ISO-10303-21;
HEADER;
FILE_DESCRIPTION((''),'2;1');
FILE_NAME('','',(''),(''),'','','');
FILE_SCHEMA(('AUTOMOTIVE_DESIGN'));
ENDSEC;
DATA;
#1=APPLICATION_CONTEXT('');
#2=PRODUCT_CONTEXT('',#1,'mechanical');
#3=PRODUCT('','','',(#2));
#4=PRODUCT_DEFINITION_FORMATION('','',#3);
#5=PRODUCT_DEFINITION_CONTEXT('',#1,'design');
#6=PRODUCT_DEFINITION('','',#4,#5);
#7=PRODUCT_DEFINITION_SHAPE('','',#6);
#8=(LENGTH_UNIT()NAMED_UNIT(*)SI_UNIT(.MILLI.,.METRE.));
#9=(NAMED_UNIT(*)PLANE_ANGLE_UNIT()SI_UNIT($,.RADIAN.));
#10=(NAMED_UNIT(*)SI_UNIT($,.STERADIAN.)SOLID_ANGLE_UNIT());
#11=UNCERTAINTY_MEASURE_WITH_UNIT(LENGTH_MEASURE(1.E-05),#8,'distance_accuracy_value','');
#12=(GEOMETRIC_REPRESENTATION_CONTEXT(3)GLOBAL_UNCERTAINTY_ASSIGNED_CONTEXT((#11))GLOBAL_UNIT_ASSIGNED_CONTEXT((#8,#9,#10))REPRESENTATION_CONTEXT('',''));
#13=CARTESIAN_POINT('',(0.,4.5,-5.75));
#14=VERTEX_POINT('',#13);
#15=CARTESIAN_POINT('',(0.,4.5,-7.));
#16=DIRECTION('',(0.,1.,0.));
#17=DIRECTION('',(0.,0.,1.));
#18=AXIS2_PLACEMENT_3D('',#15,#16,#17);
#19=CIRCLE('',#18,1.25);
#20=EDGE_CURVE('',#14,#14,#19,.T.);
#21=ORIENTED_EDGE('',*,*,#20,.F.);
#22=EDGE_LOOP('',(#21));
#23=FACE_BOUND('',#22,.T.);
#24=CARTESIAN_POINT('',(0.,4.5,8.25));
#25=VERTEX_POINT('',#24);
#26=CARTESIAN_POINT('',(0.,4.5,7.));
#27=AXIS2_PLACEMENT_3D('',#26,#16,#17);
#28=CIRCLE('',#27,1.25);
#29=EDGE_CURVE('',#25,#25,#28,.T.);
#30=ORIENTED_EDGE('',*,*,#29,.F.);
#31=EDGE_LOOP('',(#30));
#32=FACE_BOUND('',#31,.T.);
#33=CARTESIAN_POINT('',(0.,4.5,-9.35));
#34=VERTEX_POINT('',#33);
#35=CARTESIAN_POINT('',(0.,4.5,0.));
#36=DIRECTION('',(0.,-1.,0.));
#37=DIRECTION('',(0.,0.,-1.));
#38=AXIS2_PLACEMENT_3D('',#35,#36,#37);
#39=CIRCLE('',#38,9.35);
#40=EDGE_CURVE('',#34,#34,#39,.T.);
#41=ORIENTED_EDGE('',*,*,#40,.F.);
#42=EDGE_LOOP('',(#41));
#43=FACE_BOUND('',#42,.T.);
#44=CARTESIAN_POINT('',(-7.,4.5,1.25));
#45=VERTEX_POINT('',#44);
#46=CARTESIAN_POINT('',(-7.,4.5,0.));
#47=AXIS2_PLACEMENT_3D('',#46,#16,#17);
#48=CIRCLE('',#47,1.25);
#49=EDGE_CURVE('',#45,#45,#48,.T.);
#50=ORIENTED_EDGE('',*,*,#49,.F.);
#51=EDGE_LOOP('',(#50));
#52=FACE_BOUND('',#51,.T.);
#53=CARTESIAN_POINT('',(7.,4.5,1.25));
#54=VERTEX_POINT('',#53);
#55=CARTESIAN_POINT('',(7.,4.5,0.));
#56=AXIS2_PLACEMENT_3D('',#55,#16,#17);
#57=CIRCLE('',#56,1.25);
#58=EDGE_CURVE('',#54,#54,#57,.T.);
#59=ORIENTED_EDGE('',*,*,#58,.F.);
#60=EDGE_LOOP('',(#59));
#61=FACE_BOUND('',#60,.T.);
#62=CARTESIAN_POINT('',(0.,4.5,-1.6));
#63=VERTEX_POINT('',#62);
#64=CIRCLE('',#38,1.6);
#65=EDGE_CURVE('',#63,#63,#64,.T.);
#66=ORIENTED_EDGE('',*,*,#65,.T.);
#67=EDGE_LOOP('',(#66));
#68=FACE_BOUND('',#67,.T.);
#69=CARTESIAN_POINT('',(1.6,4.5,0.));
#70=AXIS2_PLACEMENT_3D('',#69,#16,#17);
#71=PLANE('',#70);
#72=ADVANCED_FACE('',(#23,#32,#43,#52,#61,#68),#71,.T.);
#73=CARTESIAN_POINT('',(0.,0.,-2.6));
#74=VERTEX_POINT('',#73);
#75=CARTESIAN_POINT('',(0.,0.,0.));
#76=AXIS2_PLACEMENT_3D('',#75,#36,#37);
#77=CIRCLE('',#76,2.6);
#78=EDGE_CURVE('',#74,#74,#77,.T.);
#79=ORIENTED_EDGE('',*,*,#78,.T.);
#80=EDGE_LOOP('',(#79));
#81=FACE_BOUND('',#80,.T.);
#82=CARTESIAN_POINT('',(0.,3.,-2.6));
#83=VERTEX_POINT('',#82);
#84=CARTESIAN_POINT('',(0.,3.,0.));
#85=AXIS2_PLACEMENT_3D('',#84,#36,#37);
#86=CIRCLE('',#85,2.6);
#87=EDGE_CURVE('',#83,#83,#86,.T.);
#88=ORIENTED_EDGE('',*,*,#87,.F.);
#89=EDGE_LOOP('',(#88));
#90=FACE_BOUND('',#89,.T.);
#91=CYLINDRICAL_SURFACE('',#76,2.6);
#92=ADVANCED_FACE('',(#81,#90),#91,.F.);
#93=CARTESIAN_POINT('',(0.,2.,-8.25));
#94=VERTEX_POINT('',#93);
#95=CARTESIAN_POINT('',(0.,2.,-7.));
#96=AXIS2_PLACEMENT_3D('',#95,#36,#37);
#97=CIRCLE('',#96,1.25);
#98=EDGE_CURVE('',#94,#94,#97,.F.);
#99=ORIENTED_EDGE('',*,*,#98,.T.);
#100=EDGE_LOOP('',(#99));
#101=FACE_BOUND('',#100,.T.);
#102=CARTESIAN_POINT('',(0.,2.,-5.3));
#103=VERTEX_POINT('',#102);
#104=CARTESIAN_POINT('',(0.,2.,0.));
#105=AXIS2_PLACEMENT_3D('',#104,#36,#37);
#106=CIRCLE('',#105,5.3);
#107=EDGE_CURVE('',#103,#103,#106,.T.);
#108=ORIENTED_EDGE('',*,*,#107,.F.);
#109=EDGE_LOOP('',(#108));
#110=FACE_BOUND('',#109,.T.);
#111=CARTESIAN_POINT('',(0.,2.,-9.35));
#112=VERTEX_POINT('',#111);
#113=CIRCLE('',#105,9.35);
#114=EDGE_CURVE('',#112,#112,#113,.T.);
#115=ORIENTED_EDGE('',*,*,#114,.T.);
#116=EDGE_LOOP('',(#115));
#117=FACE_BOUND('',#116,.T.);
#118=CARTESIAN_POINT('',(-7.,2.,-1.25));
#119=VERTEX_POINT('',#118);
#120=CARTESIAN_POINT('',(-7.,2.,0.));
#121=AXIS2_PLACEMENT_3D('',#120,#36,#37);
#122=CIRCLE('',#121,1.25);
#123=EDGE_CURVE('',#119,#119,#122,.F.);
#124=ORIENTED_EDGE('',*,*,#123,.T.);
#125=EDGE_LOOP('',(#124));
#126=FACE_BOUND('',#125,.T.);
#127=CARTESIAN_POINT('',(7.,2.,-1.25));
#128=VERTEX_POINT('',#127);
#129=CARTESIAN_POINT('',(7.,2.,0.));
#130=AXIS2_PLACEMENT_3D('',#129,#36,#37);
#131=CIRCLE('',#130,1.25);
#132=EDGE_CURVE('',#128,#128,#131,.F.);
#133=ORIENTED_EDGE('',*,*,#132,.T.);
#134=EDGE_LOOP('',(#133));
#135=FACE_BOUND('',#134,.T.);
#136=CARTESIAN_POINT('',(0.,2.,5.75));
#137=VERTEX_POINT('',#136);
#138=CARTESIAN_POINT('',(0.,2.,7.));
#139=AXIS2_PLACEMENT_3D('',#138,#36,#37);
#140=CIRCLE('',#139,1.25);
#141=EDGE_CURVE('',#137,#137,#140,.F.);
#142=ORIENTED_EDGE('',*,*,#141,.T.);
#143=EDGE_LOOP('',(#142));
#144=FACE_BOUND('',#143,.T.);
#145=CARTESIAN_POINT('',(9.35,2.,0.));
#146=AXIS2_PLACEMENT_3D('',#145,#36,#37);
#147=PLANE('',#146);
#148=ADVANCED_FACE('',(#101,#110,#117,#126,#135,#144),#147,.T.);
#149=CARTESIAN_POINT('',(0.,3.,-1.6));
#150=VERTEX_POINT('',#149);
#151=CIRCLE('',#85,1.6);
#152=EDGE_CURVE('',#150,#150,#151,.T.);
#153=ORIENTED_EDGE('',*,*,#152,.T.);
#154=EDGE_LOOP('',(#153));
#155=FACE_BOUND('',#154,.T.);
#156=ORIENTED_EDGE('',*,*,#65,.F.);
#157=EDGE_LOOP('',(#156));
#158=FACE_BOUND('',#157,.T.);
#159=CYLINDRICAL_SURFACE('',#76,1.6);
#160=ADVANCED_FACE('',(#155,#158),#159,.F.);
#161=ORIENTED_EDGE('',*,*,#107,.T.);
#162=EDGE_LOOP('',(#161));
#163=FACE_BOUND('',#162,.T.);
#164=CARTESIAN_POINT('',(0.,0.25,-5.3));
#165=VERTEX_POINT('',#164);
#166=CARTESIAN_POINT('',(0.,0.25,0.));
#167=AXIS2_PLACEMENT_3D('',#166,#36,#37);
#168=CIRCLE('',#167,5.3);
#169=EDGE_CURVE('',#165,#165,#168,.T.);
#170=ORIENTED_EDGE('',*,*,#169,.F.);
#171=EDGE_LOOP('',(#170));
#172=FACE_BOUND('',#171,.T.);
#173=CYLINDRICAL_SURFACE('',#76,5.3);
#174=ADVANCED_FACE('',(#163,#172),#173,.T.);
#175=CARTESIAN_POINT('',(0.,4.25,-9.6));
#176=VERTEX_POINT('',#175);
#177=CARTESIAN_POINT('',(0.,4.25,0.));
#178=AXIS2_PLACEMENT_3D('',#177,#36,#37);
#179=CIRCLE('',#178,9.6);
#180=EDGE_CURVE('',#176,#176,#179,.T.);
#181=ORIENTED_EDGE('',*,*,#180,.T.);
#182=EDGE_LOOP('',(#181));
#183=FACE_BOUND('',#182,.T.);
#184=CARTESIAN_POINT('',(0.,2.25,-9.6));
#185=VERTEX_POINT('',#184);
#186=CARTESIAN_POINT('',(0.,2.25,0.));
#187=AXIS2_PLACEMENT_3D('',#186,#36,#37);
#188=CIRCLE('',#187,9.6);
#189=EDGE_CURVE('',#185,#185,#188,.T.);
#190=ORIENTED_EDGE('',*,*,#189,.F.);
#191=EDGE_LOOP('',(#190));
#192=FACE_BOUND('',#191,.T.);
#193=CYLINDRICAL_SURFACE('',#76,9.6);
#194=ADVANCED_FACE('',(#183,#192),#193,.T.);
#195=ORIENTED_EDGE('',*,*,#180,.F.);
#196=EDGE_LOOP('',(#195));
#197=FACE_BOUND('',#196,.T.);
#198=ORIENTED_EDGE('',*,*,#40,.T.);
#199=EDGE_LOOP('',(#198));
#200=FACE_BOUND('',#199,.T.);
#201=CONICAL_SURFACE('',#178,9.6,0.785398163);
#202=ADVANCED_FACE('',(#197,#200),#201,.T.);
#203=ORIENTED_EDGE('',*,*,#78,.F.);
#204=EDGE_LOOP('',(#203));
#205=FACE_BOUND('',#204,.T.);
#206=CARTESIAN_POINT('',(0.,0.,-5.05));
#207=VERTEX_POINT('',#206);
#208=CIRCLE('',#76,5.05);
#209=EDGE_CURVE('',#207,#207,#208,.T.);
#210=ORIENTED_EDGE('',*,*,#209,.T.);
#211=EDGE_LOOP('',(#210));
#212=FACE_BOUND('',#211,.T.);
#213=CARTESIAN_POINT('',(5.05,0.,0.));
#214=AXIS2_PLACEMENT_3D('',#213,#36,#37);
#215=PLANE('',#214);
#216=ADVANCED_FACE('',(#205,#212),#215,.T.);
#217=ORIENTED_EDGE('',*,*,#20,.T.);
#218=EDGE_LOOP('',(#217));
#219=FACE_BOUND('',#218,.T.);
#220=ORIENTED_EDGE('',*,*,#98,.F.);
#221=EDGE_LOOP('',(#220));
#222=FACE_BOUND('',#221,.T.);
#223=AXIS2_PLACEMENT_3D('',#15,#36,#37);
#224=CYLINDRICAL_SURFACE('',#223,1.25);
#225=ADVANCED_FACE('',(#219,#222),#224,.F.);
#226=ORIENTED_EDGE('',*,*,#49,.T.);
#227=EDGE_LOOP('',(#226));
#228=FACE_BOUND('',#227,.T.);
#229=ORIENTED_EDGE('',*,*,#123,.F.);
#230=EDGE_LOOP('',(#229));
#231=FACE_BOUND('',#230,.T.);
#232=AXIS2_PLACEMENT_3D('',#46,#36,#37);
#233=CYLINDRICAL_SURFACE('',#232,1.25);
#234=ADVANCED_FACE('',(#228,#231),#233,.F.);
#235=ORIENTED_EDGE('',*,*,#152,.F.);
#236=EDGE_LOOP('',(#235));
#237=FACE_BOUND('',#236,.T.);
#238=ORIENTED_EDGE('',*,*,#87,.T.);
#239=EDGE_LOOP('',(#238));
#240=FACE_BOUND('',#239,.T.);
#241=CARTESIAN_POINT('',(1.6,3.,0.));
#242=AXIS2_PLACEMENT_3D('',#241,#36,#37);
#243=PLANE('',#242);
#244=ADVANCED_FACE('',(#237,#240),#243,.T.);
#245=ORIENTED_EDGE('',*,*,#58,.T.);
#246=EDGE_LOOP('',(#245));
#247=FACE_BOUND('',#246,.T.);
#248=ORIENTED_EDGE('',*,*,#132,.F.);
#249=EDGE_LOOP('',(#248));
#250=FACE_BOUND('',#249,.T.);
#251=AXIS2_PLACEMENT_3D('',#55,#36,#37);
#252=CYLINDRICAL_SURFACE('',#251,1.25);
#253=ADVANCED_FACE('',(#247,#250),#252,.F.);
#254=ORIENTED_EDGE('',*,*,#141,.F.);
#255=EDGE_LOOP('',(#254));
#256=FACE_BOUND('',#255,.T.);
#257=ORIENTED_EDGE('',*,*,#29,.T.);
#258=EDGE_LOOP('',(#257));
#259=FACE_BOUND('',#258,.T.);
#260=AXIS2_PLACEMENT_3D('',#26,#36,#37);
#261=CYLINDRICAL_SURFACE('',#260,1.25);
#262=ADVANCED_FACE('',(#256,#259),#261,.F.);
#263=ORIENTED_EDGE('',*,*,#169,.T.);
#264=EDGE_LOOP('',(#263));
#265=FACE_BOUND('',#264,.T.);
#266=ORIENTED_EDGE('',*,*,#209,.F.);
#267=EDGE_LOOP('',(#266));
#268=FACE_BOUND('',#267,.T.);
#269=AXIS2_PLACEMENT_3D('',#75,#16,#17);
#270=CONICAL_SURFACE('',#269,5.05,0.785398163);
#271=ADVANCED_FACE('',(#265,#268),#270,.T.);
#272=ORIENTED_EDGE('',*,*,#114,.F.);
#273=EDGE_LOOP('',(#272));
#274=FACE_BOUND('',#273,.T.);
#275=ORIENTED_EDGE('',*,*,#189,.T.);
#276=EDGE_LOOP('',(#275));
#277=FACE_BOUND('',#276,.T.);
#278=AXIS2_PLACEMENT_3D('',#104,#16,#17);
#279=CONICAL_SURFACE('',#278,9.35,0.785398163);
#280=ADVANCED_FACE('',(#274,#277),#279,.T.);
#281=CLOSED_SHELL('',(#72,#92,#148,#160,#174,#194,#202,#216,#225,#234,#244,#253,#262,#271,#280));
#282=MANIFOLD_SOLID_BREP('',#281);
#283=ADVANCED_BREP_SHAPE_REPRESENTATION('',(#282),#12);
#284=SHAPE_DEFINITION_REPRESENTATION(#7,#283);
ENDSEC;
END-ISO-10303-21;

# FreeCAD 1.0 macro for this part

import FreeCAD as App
import Part
import Sketcher
Q = App.Units.Quantity


def add_polygon(sketch, points):
    """Adds a closed chain of lines whose ends are joined by coincident constraints."""
    first, n = sketch.GeometryCount, len(points)
    for a, b in zip(points, points[1:] + points[:1]):
        sketch.addGeometry(Part.LineSegment(App.Vector(*a, 0), App.Vector(*b, 0)), False)
    for i in range(n):
        sketch.addConstraint(Sketcher.Constraint("Coincident", first + i, 2, first + (i + 1) % n, 1))

doc = App.newDocument("Part")
body = doc.addObject("PartDesign::Body", "Body")

# Sketch on XY plane
sketch1 = body.newObject("Sketcher::SketchObject", "Sketch")
sketch1.AttachmentSupport = (doc.getObject("XY_Plane"), [""])
sketch1.MapMode = "FlatFace"
add_polygon(sketch1, [(1.6, 4.5), (1.6, 3), (2.6, 3), (2.6, 0), (5.05, 0), (5.3, 0.25), (5.3, 2), (9.35, 2), (9.6, 2.25), (9.6, 4.25), (9.35, 4.5)])  # lines 0-10
sketch1.addConstraint(Sketcher.Constraint("Vertical", 0))
sketch1.addConstraint(Sketcher.Constraint("Horizontal", 1))
sketch1.addConstraint(Sketcher.Constraint("Vertical", 2))
sketch1.addConstraint(Sketcher.Constraint("Horizontal", 3))
sketch1.addConstraint(Sketcher.Constraint("Vertical", 5))
sketch1.addConstraint(Sketcher.Constraint("Horizontal", 6))
sketch1.addConstraint(Sketcher.Constraint("Vertical", 8))
sketch1.addConstraint(Sketcher.Constraint("Horizontal", 10))
sketch1.addConstraint(Sketcher.Constraint("PointOnObject", 2, 2, -1))
sketch1.addConstraint(Sketcher.Constraint("Parallel", 4, 7))
sketch1.addConstraint(Sketcher.Constraint("Perpendicular", 7, 9))
sketch1.addConstraint(Sketcher.Constraint("Vertical", 6, 2, 9, 2))
sketch1.addConstraint(Sketcher.Constraint("Equal", 4, 7))
sketch1.addConstraint(Sketcher.Constraint("Equal", 7, 9))
sketch1.addConstraint(Sketcher.Constraint("DistanceX", 1, 1, 1, 2, Q("1 mm")))
sketch1.addConstraint(Sketcher.Constraint("DistanceY", 2, 2, 2, 1, Q("3 mm")))
sketch1.addConstraint(Sketcher.Constraint("DistanceY", 8, 1, 8, 2, Q("2 mm")))
sketch1.addConstraint(Sketcher.Constraint("DistanceY", 0, 2, 0, 1, Q("1.5 mm")))
sketch1.addConstraint(Sketcher.Constraint("DistanceY", -1, 1, 5, 2, Q("2 mm")))
sketch1.addConstraint(Sketcher.Constraint("DistanceX", 1, 2, 7, 2, Q("7 mm")))
sketch1.addConstraint(Sketcher.Constraint("DistanceX", 3, 1, 3, 2, Q("2.45 mm")))
sketch1.addConstraint(Sketcher.Constraint("DistanceX", -1, 1, 0, 2, Q("1.6 mm")))
revolution = body.newObject("PartDesign::Revolution", "Revolution")
revolution.Profile = sketch1
revolution.ReferenceAxis = (sketch1, ["V_Axis"])
revolution.Angle = 360

# Sketch on XZ plane
sketch2 = body.newObject("Sketcher::SketchObject", "Sketch001")
sketch2.AttachmentSupport = (doc.getObject("XZ_Plane"), [""])
sketch2.MapMode = "FlatFace"
sketch2.addGeometry(Part.Circle(App.Vector(0, -7, 0), App.Vector(0, 0, 1), 1.25), False)
sketch2.addGeometry(Part.Circle(App.Vector(0, 7, 0), App.Vector(0, 0, 1), 1.25), False)
sketch2.addGeometry(Part.Circle(App.Vector(7, 0, 0), App.Vector(0, 0, 1), 1.25), False)
sketch2.addGeometry(Part.Circle(App.Vector(-7, 0, 0), App.Vector(0, 0, 1), 1.25), False)
sketch2.addConstraint(Sketcher.Constraint("Equal", 0, 1))
sketch2.addConstraint(Sketcher.Constraint("Equal", 1, 2))
sketch2.addConstraint(Sketcher.Constraint("Equal", 2, 3))
sketch2.addConstraint(Sketcher.Constraint("Symmetric", 0, 3, 1, 3, -1, 1))
sketch2.addConstraint(Sketcher.Constraint("Symmetric", 2, 3, 3, 3, -1, 1))
sketch2.addConstraint(Sketcher.Constraint("PointOnObject", 0, 3, -2))
sketch2.addConstraint(Sketcher.Constraint("PointOnObject", 2, 3, -1))
sketch2.addConstraint(Sketcher.Constraint("Diameter", 0, Q("2.5 mm")))
sketch2.addConstraint(Sketcher.Constraint("DistanceY", 0, 3, -1, 1, Q("7 mm")))
sketch2.addConstraint(Sketcher.Constraint("DistanceX", -1, 1, 2, 3, Q("7 mm")))
pocket1 = body.newObject("PartDesign::Pocket", "Pocket")
pocket1.Profile = sketch2
pocket1.Type = "ThroughAll"

doc.recompute()
